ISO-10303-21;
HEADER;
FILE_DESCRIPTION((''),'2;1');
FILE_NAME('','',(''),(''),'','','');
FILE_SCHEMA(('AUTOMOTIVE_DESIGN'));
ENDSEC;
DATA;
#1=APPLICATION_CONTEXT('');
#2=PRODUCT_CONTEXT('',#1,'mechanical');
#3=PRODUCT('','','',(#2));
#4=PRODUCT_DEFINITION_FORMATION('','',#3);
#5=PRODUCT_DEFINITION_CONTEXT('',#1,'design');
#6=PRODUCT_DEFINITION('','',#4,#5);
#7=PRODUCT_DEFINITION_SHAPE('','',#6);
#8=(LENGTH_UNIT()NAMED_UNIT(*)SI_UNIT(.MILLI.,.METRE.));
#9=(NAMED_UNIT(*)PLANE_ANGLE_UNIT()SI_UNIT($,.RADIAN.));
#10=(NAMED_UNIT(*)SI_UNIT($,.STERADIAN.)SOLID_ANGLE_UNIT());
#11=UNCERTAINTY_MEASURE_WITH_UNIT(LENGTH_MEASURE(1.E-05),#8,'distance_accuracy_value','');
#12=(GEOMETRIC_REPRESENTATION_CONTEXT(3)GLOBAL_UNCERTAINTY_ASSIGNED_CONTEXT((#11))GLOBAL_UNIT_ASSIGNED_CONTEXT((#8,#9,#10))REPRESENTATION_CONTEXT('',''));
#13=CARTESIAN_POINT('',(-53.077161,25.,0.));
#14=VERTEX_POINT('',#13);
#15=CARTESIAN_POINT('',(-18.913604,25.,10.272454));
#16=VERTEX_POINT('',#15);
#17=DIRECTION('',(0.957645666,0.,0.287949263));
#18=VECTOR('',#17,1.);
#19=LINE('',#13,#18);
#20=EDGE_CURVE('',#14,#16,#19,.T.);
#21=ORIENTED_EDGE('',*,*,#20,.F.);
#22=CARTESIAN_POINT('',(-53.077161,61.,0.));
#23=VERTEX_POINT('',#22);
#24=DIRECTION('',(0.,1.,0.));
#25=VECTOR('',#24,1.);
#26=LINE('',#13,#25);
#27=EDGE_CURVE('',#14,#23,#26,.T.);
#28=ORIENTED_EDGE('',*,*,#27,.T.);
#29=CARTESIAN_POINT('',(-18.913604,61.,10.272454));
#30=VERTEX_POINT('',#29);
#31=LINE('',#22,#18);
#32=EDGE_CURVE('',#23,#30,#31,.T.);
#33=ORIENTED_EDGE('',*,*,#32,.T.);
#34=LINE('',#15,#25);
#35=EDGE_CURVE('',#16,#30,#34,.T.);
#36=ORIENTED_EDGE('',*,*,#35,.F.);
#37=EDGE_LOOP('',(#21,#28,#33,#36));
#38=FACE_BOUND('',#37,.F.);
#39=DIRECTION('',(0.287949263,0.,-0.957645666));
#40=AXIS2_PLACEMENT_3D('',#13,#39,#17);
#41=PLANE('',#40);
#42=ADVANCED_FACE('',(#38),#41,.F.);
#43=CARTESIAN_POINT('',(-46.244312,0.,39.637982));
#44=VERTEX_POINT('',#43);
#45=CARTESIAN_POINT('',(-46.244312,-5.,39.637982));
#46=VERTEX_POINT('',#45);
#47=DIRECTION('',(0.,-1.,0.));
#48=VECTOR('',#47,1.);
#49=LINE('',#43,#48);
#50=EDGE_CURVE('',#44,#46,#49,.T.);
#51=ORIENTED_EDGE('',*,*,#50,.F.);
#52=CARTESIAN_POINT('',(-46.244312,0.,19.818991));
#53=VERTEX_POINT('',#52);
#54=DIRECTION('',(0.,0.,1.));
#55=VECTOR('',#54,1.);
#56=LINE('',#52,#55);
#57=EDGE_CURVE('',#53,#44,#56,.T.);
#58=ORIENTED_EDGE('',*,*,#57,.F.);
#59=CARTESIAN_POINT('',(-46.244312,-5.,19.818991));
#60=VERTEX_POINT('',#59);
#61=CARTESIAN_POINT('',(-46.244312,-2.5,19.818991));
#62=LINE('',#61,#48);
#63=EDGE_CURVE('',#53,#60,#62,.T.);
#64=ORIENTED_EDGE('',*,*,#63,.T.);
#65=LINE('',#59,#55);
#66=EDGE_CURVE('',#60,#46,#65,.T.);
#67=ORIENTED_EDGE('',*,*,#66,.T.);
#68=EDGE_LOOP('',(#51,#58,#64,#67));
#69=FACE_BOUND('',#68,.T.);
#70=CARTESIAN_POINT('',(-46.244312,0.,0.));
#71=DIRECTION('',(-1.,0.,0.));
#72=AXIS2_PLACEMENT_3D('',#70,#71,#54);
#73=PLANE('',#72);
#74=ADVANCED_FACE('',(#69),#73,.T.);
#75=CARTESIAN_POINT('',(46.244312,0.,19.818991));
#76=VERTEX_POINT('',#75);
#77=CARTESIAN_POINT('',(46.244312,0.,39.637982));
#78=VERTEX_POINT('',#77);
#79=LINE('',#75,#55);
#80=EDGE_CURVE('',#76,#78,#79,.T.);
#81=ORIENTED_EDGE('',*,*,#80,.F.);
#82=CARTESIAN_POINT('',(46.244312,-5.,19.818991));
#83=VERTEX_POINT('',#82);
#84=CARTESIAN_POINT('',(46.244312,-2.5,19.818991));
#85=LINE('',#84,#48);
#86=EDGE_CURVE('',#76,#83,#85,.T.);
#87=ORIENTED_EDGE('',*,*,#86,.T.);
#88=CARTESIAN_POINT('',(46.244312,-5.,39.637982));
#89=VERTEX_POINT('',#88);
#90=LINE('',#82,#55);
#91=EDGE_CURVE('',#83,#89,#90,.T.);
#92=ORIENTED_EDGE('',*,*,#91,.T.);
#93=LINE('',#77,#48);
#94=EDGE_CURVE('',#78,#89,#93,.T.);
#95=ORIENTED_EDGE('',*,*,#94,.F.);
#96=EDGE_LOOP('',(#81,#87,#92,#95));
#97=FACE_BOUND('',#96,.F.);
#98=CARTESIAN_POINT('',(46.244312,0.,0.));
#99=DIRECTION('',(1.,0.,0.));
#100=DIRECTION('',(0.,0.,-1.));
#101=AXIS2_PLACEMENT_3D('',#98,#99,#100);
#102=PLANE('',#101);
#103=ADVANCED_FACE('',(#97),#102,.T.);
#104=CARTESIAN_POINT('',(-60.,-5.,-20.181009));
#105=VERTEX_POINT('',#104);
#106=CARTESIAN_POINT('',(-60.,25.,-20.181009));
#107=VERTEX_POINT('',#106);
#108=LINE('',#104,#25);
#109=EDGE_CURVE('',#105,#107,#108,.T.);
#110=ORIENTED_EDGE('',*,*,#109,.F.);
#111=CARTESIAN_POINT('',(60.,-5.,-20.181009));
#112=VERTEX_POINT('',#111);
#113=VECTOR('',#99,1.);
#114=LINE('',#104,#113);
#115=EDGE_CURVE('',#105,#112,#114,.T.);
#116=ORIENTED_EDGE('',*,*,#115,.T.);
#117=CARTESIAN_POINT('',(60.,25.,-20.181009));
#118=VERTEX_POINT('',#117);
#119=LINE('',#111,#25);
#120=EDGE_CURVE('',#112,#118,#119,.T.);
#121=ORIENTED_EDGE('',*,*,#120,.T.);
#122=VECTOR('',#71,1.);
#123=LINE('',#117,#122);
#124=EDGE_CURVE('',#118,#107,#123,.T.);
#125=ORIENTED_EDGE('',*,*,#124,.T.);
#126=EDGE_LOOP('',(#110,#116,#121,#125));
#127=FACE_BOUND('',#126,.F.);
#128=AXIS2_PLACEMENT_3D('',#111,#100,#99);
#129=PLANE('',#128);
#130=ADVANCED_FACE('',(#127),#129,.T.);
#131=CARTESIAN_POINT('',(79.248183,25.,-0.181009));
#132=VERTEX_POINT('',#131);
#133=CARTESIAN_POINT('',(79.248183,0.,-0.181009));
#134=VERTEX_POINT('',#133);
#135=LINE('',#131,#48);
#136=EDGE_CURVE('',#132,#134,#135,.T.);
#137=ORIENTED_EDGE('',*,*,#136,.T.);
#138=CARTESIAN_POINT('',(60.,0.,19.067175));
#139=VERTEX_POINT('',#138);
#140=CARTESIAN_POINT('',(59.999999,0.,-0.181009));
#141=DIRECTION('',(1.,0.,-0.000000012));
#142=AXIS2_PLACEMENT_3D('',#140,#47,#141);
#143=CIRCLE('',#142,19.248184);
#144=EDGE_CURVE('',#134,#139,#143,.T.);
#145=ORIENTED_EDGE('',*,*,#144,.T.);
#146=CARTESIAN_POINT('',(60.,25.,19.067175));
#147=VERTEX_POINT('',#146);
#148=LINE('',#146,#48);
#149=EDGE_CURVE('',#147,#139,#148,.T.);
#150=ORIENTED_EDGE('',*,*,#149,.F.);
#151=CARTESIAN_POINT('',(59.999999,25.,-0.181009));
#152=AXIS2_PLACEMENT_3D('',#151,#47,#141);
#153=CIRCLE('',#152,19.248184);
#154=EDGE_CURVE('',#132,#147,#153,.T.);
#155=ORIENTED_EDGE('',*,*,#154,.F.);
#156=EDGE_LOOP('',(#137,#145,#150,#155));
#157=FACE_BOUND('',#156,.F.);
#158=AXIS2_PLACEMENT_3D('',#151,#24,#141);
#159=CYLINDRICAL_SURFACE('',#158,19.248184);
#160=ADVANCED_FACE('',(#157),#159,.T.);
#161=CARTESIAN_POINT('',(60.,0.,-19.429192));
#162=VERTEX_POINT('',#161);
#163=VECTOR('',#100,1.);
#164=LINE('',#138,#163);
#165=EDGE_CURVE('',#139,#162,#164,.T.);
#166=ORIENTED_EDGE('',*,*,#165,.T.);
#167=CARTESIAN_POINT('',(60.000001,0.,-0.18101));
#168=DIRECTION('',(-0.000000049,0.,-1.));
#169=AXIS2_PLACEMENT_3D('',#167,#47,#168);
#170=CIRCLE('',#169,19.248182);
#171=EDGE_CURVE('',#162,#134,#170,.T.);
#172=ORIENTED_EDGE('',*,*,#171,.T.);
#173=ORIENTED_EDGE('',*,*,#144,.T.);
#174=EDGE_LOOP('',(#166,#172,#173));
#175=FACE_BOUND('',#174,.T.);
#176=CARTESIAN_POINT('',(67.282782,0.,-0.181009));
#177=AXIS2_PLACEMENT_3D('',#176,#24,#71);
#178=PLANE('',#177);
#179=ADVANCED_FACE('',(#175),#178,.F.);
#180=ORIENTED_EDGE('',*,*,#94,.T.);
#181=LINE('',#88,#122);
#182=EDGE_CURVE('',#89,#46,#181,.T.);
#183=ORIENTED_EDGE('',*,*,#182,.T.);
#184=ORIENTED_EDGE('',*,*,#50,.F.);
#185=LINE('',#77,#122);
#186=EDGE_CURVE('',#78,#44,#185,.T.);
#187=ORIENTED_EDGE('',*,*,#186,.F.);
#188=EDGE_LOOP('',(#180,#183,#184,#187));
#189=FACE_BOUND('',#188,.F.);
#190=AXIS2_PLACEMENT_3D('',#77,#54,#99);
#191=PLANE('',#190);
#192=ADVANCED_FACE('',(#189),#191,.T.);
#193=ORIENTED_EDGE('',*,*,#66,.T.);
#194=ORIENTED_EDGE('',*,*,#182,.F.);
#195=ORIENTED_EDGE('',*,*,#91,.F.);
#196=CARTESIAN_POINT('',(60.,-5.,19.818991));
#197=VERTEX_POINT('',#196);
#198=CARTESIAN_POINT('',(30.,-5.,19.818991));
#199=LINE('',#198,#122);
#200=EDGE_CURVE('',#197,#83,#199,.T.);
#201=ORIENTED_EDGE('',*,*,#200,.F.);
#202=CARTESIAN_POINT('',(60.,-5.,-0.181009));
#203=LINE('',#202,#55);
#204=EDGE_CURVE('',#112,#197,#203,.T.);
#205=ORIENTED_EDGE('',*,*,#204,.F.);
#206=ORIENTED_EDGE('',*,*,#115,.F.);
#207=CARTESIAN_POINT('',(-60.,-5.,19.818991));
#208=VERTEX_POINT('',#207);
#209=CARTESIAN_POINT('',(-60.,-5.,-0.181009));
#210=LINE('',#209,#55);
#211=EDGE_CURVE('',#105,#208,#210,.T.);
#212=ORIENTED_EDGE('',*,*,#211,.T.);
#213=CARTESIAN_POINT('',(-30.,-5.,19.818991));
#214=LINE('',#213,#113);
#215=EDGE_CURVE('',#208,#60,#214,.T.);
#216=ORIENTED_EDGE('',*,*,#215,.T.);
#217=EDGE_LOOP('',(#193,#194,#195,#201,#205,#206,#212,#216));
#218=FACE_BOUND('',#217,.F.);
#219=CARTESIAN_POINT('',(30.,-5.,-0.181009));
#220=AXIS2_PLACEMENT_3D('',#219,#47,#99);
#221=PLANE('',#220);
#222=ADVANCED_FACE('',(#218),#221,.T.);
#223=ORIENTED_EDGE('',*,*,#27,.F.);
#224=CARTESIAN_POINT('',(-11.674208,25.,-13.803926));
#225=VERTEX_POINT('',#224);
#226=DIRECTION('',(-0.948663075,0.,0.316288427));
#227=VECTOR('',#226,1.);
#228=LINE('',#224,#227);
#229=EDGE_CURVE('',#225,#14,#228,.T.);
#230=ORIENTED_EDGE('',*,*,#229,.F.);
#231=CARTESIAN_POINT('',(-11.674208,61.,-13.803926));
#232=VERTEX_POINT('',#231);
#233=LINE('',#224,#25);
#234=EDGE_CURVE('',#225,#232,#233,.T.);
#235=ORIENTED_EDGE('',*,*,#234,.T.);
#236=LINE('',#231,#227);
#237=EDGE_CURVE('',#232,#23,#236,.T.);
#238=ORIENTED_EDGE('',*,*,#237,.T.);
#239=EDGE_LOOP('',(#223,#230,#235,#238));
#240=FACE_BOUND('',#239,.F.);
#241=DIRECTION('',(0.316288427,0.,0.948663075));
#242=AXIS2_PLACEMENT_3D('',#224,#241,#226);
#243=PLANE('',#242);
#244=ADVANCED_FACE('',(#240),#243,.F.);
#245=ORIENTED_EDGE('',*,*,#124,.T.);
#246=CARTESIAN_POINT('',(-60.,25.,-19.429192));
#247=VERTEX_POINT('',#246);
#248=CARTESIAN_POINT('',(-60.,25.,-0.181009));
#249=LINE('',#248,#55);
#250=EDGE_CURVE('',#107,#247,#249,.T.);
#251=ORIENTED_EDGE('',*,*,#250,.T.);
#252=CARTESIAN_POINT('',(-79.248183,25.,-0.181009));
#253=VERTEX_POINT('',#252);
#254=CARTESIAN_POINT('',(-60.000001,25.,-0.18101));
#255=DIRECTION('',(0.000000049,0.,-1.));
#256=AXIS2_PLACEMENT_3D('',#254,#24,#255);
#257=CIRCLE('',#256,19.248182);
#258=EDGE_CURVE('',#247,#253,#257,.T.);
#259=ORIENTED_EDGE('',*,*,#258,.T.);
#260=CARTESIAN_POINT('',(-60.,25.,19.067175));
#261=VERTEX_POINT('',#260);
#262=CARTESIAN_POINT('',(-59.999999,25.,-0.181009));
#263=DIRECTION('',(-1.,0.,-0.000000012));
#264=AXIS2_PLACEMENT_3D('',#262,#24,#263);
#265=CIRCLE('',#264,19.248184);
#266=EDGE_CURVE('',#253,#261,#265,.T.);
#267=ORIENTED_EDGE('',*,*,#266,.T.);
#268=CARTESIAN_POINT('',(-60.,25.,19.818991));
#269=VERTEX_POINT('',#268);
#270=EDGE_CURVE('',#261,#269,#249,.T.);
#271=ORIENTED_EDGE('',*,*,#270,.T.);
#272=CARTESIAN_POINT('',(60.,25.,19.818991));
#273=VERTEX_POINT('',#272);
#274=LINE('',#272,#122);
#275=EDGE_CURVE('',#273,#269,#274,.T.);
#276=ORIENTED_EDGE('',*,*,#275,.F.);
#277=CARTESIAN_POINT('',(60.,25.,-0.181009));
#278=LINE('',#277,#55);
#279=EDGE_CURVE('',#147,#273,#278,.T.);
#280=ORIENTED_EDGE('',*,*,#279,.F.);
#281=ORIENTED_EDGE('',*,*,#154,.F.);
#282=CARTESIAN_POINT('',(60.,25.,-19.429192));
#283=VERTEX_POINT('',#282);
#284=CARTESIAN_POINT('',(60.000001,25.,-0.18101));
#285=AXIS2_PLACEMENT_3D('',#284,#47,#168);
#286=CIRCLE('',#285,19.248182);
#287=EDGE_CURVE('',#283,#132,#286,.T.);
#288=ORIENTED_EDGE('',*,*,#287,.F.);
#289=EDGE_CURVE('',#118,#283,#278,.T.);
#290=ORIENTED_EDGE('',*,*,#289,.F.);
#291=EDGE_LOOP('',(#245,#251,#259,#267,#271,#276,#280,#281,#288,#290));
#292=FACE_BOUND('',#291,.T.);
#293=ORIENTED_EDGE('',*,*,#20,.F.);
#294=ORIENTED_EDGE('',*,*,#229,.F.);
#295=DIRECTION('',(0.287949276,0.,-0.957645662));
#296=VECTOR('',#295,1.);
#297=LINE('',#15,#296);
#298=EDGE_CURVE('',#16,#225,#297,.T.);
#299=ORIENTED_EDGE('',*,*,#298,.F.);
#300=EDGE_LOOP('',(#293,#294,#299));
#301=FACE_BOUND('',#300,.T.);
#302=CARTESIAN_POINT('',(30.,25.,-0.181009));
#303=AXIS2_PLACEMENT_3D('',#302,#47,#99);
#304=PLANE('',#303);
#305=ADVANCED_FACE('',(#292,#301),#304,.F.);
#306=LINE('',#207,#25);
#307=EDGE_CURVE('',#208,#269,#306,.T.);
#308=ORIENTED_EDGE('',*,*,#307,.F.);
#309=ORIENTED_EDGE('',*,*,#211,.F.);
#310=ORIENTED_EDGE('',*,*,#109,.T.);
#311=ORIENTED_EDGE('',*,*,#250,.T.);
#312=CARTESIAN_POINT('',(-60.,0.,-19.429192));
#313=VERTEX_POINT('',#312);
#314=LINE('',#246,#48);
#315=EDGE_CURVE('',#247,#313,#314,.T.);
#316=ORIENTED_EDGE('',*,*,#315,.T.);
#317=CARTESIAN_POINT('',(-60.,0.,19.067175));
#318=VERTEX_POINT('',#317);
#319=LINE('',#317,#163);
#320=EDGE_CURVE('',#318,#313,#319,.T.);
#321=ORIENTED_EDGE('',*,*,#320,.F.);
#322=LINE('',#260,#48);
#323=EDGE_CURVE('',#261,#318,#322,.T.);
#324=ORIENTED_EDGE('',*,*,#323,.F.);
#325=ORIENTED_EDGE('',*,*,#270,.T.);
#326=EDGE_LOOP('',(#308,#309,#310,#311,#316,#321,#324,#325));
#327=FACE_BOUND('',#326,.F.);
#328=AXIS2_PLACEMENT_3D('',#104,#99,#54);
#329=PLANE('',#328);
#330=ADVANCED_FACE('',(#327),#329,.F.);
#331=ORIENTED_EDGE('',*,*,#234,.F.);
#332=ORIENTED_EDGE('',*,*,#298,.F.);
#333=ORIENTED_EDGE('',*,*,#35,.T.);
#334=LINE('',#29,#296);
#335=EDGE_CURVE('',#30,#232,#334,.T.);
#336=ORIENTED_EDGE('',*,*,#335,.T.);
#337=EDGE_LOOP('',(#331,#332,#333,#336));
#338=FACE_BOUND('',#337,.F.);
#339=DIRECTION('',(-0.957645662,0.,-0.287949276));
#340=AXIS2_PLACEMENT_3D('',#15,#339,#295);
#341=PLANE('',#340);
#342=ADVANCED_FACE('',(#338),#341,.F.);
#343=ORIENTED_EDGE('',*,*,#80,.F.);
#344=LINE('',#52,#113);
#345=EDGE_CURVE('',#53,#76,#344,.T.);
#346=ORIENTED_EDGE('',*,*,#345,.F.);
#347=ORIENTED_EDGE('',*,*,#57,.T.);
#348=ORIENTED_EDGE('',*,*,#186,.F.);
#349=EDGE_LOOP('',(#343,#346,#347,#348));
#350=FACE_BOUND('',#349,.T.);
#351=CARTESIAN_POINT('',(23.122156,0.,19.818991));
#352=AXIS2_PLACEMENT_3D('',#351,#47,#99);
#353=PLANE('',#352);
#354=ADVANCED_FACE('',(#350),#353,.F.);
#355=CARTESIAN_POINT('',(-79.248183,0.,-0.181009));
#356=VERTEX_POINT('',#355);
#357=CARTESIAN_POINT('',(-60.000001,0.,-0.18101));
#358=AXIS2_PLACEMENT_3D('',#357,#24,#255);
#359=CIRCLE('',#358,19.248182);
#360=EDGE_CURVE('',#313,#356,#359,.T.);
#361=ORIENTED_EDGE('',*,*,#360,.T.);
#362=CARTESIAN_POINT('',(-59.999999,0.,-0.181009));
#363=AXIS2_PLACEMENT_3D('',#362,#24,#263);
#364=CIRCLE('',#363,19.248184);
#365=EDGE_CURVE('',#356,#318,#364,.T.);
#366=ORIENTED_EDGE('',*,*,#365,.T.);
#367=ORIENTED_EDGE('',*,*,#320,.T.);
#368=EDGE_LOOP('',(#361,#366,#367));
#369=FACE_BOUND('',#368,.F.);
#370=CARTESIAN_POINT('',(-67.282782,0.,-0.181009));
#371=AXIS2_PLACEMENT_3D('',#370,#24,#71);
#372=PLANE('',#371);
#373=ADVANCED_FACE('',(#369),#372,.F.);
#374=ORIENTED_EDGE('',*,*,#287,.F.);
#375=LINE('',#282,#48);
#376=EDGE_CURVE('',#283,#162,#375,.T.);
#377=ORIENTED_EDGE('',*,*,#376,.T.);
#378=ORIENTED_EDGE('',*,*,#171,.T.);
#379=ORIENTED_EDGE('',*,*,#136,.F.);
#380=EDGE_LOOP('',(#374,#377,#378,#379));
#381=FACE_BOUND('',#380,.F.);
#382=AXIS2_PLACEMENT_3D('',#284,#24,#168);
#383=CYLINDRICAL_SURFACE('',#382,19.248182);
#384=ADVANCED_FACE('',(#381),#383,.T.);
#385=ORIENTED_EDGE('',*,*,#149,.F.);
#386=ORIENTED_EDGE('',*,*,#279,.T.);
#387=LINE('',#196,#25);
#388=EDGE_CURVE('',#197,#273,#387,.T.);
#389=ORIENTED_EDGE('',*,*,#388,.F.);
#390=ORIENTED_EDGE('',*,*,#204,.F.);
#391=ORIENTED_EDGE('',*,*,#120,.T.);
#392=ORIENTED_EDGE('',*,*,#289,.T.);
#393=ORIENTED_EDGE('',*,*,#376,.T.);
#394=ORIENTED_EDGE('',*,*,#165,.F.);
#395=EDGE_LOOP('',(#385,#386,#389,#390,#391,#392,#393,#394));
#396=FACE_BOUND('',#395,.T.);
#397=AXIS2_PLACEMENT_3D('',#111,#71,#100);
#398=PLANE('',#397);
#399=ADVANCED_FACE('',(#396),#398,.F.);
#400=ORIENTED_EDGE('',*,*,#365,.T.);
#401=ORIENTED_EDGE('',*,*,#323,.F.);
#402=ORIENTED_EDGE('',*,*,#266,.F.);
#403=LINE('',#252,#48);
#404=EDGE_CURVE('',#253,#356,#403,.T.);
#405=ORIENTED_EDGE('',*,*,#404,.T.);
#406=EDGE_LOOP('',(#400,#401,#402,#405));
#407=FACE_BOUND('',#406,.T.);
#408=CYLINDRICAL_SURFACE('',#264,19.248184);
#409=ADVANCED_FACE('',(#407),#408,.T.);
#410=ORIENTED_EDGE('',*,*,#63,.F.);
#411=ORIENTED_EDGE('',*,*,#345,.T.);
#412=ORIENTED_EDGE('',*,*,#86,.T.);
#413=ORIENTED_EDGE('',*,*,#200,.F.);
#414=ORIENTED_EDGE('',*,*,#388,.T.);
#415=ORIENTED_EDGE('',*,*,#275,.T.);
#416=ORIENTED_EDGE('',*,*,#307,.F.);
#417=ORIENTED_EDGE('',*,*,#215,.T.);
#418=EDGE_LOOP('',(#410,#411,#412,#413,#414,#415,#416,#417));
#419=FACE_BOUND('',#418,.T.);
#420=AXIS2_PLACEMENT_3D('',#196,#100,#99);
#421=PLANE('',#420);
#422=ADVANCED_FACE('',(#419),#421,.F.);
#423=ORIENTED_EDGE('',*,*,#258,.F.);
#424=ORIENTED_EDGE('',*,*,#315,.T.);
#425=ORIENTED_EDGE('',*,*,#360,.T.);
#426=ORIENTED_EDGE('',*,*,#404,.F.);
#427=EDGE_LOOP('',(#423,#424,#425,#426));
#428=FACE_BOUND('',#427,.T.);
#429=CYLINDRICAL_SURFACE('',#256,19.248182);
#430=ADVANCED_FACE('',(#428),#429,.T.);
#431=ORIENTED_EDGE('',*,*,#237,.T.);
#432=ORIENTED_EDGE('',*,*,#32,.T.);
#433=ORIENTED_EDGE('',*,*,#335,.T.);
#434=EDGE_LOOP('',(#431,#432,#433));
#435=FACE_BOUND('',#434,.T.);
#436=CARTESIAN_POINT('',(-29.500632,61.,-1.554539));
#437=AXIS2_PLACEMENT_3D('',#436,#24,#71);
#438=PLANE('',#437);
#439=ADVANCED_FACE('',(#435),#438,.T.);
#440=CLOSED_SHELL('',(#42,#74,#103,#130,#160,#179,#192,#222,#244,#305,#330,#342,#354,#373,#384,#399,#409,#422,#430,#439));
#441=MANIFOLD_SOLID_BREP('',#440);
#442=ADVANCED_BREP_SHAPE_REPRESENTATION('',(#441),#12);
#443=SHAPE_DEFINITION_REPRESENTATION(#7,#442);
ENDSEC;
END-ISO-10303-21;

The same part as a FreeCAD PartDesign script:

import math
import FreeCAD as App
import Part
import Sketcher

V = App.Vector

doc = App.newDocument("Part")
body = doc.addObject("PartDesign::Body", "Body")

sketch1 = body.newObject("Sketcher::SketchObject", "Sketch")
sketch1.AttachmentSupport = (doc.getObject("XZ_Plane"), [""])
sketch1.MapMode = "FlatFace"
sketch1.addGeometry(Part.LineSegment(V(-46, 40, 0), V(-46, 0, 0)), False)
sketch1.addGeometry(Part.LineSegment(V(-46, 0, 0), V(0, 0, 0)), False)
sketch1.addGeometry(Part.LineSegment(V(0, 0, 0), V(0, 40, 0)), False)
sketch1.addGeometry(Part.LineSegment(V(0, 40, 0), V(-46, 40, 0)), False)
sketch1.addConstraint(Sketcher.Constraint("Coincident", 0, 2, 1, 1))
sketch1.addConstraint(Sketcher.Constraint("Coincident", 1, 2, 2, 1))
sketch1.addConstraint(Sketcher.Constraint("Coincident", 2, 2, 3, 1))
sketch1.addConstraint(Sketcher.Constraint("Coincident", 3, 2, 0, 1))
sketch1.addConstraint(Sketcher.Constraint("Vertical", 0))
sketch1.addConstraint(Sketcher.Constraint("Horizontal", 1))
sketch1.addConstraint(Sketcher.Constraint("Vertical", 2))
sketch1.addConstraint(Sketcher.Constraint("Horizontal", 3))
sketch1.addConstraint(Sketcher.Constraint("Coincident", 1, 2, -1, 1))
sketch1.addConstraint(Sketcher.Constraint("DistanceX", 1, 1, 1, 2, 46.244312))
sketch1.addConstraint(Sketcher.Constraint("DistanceY", 0, 2, 0, 1, 39.637983))
pad1 = body.newObject("PartDesign::Pad", "Pad")
pad1.Profile = sketch1
pad1.Length = 5

sketch2 = body.newObject("Sketcher::SketchObject", "Sketch001")
sketch2.AttachmentSupport = (doc.getObject("XZ_Plane"), [""])
sketch2.MapMode = "FlatFace"
sketch2.AttachmentOffset = App.Placement(V(0, 0, 5), App.Rotation())
sketch2.addGeometry(Part.LineSegment(V(-60, 20, 0), V(-60, -20, 0)), False)
sketch2.addGeometry(Part.LineSegment(V(-60, -20, 0), V(0, -20, 0)), False)
sketch2.addGeometry(Part.LineSegment(V(0, -20, 0), V(0, 20, 0)), False)
sketch2.addGeometry(Part.LineSegment(V(0, 20, 0), V(-60, 20, 0)), False)
sketch2.addConstraint(Sketcher.Constraint("Coincident", 0, 2, 1, 1))
sketch2.addConstraint(Sketcher.Constraint("Coincident", 1, 2, 2, 1))
sketch2.addConstraint(Sketcher.Constraint("Coincident", 2, 2, 3, 1))
sketch2.addConstraint(Sketcher.Constraint("Coincident", 3, 2, 0, 1))
sketch2.addConstraint(Sketcher.Constraint("Vertical", 0))
sketch2.addConstraint(Sketcher.Constraint("Horizontal", 1))
sketch2.addConstraint(Sketcher.Constraint("Vertical", 2))
sketch2.addConstraint(Sketcher.Constraint("Horizontal", 3))
sketch2.addConstraint(Sketcher.Constraint("PointOnObject", 1, 2, -2))
sketch2.addConstraint(Sketcher.Constraint("DistanceX", 1, 1, 1, 2, 60.0))
sketch2.addConstraint(Sketcher.Constraint("DistanceY", 0, 2, 0, 1, 40.0))
sketch2.addConstraint(Sketcher.Constraint("DistanceY", 0, 2, -1, 1, 20.181009))
pad2 = body.newObject("PartDesign::Pad", "Pad001")
pad2.Profile = sketch2
pad2.Length = 30
pad2.Reversed = True

sketch3 = body.newObject("Sketcher::SketchObject", "Sketch002")
sketch3.AttachmentSupport = (doc.getObject("XZ_Plane"), [""])
sketch3.MapMode = "FlatFace"
sketch3.AttachmentOffset = App.Placement(V(0, 0, -25), App.Rotation())
sketch3.addGeometry(Part.ArcOfCircle(Part.Circle(V(-60, 0, 0), V(0, 0, 1), 19), math.radians(90), math.radians(180)), False)
sketch3.addGeometry(Part.LineSegment(V(-60, 19, 0), V(-60, -19, 0)), False)
sketch3.addGeometry(Part.ArcOfCircle(Part.Circle(V(-60, 0, 0), V(0, 0, 1), 19), math.radians(180), math.radians(270)), False)
sketch3.addConstraint(Sketcher.Constraint("Coincident", 0, 1, 1, 1))
sketch3.addConstraint(Sketcher.Constraint("Coincident", 1, 2, 2, 2))
sketch3.addConstraint(Sketcher.Constraint("Tangent", 2, 1, 0, 2))
sketch3.addConstraint(Sketcher.Constraint("Vertical", 1))
sketch3.addConstraint(Sketcher.Constraint("Equal", 0, 2))
sketch3.addConstraint(Sketcher.Constraint("Horizontal", 0, 3, 2, 1))
sketch3.addConstraint(Sketcher.Constraint("Vertical", 2, 3, 0, 1))
sketch3.addConstraint(Sketcher.Constraint("DistanceX", 0, 3, -1, 1, 59.999999))
sketch3.addConstraint(Sketcher.Constraint("Radius", 0, 19.248184))
sketch3.addConstraint(Sketcher.Constraint("DistanceY", 0, 3, -1, 1, 0.181009))
pad3 = body.newObject("PartDesign::Pad", "Pad002")
pad3.Profile = sketch3
pad3.Length = 25
body2 = doc.addObject("PartDesign::Body", "Body001")
doc.recompute()

body2.BaseFeature = body
doc.recompute()

mirroring = doc.addObject("Part::Mirroring", "Mirroring")
mirroring.Source = body
mirroring.Base = V(0, 0, 0)
mirroring.Normal = V(1, 0, 0)
body3 = doc.addObject("PartDesign::Body", "Body002")
body3.BaseFeature = mirroring
boolean = body2.newObject("PartDesign::Boolean", "Boolean")
boolean.Type = "Fuse"
boolean.addObjects([body3])
doc.recompute()

sketch4 = body2.newObject("Sketcher::SketchObject", "Sketch003")
sketch4.AttachmentSupport = (doc.getObject("XZ_Plane001"), [""])
sketch4.MapMode = "FlatFace"
sketch4.AttachmentOffset = App.Placement(V(0, 0, -25), App.Rotation())
sketch4.addGeometry(Part.LineSegment(V(-12, -14, 0), V(-53, 0, 0)), False)
sketch4.addGeometry(Part.LineSegment(V(-53, 0, 0), V(-19, 10, 0)), False)
sketch4.addGeometry(Part.LineSegment(V(-19, 10, 0), V(-12, -14, 0)), False)
sketch4.addConstraint(Sketcher.Constraint("Coincident", 0, 2, 1, 1))
sketch4.addConstraint(Sketcher.Constraint("Coincident", 1, 2, 2, 1))
sketch4.addConstraint(Sketcher.Constraint("Coincident", 2, 2, 0, 1))
sketch4.addConstraint(Sketcher.Constraint("PointOnObject", 0, 2, -1))
sketch4.addConstraint(Sketcher.Constraint("Perpendicular", 1, 2))
sketch4.addConstraint(Sketcher.Constraint("Distance", 2, 25.14122))
sketch4.addConstraint(Sketcher.Constraint("DistanceX", 0, 2, -1, 1, 53.077161))
sketch4.addConstraint(Sketcher.Constraint("DistanceY", 2, 2, 1, 2, 24.07638))
sketch4.addConstraint(Sketcher.Constraint("Distance", 0, 43.643475))
pad4 = body2.newObject("PartDesign::Pad", "Pad003")
pad4.Profile = sketch4
pad4.Length = 36
pad4.Reversed = True
mirroring.Visibility = False

doc.recompute()
